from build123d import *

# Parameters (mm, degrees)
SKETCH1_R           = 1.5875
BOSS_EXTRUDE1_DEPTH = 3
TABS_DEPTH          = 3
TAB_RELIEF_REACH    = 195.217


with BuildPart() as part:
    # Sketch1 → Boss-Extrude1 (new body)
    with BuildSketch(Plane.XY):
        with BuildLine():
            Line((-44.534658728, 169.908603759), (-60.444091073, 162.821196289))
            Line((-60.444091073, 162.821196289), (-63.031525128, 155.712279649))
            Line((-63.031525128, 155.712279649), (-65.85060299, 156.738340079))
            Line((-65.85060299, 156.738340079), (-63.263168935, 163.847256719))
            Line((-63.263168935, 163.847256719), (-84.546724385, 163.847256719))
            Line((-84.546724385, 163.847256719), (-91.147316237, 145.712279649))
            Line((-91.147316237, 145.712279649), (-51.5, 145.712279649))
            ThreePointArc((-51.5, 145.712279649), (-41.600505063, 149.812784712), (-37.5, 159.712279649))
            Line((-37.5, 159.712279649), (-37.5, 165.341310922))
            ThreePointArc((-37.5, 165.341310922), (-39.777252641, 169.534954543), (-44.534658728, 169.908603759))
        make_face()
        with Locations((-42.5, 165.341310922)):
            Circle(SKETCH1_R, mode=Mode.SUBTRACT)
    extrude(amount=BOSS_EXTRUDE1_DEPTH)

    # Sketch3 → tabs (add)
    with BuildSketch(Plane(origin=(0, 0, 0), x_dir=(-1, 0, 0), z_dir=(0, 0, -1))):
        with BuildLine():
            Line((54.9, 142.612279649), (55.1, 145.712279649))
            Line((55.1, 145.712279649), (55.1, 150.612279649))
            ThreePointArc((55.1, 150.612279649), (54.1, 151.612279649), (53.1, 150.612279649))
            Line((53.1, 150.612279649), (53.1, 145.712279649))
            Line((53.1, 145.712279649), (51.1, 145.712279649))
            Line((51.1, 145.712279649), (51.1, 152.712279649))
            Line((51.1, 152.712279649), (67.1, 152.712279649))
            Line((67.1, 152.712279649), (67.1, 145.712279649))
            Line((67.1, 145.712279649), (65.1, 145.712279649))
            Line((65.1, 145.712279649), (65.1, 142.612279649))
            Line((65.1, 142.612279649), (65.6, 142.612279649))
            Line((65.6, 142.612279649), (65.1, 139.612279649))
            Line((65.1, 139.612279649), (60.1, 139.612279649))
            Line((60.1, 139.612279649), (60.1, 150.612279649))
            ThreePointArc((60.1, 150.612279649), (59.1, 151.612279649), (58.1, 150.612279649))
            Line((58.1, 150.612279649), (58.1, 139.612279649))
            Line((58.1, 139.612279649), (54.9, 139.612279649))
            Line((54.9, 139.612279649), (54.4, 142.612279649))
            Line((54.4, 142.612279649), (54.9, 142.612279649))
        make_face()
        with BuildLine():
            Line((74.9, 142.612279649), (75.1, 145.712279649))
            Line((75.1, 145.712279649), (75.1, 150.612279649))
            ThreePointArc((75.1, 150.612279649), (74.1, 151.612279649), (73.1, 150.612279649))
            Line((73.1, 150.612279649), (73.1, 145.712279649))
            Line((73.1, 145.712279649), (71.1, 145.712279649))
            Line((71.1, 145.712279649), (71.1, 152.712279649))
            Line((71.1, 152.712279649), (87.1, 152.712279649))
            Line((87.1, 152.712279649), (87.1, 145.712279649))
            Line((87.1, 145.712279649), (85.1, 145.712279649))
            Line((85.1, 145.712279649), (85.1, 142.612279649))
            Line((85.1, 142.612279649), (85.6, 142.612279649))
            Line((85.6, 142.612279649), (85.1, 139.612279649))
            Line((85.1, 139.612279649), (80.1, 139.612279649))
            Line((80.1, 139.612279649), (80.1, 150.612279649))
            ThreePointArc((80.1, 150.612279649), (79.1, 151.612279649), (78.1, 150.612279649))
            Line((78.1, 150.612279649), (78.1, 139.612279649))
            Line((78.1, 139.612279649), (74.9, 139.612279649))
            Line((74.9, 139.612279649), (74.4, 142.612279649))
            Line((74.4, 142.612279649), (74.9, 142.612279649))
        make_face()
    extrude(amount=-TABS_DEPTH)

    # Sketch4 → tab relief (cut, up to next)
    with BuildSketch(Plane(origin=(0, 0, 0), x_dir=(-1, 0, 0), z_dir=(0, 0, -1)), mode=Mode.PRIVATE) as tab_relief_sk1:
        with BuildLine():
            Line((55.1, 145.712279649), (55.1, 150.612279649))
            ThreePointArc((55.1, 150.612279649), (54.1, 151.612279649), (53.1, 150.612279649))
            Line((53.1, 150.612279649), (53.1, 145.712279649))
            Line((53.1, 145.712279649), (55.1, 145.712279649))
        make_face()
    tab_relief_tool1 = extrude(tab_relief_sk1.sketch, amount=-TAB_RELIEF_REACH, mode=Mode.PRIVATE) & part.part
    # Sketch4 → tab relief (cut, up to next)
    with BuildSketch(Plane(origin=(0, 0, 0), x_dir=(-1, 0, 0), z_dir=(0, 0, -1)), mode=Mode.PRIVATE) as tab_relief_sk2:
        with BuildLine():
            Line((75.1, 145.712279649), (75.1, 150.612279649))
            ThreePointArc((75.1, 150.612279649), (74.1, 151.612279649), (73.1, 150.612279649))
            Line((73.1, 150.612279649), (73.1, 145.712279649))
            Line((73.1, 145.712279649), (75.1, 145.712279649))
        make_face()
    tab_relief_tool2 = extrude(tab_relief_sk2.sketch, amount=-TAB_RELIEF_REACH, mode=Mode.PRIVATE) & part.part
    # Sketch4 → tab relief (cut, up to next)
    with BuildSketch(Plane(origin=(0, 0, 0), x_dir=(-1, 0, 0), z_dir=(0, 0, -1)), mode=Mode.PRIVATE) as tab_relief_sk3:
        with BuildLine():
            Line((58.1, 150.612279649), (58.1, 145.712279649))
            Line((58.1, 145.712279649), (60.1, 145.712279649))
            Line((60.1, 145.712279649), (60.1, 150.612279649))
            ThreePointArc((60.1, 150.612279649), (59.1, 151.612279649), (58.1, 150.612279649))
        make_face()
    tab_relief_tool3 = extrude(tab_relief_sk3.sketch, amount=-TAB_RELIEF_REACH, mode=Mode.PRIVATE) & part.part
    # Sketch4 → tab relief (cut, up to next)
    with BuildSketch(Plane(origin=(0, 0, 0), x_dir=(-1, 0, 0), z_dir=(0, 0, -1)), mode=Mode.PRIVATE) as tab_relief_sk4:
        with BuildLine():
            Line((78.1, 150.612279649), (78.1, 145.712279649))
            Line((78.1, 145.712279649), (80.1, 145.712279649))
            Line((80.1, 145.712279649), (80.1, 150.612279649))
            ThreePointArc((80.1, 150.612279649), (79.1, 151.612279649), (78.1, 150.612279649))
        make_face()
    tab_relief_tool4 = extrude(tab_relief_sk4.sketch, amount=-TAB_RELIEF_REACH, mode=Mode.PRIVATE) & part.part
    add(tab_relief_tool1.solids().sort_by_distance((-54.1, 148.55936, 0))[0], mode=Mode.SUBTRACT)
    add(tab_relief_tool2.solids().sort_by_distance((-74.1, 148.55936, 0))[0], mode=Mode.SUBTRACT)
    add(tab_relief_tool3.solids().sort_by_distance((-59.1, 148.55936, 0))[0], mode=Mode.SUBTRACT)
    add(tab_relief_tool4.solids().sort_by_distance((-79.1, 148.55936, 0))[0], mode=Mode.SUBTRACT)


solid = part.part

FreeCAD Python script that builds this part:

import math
import FreeCAD as App
import Part
import Sketcher
from FreeCAD import Vector
Q = App.Units.Quantity

doc = App.newDocument("Part")
body = doc.addObject("PartDesign::Body", "Body")

sketch1 = body.newObject("Sketcher::SketchObject", "Sketch")
sketch1.AttachmentSupport = (doc.getObject("XY_Plane"), [""])
sketch1.MapMode = "FlatFace"
sketch1.addGeometry([
    Part.LineSegment(Vector(-44.5, 169.9, 0), Vector(-60.4, 162.8, 0)),
    Part.LineSegment(Vector(-60.4, 162.8, 0), Vector(-63, 155.7, 0)),
    Part.LineSegment(Vector(-63, 155.7, 0), Vector(-65.9, 156.7, 0)),
    Part.LineSegment(Vector(-65.9, 156.7, 0), Vector(-63.3, 163.8, 0)),
    Part.LineSegment(Vector(-63.3, 163.8, 0), Vector(-84.5, 163.8, 0)),
    Part.LineSegment(Vector(-84.5, 163.8, 0), Vector(-91.1, 145.7, 0)),
    Part.LineSegment(Vector(-91.1, 145.7, 0), Vector(-51.5, 145.7, 0)),
    Part.ArcOfCircle(Part.Circle(Vector(-51.5, 159.7, 0), Vector(0, 0, 1), 14), math.radians(-90), math.radians(0)),
    Part.LineSegment(Vector(-37.5, 159.7, 0), Vector(-37.5, 165.3, 0)),
    Part.ArcOfCircle(Part.Circle(Vector(-42.5, 165.3, 0), Vector(0, 0, 1), 5), math.radians(0), math.radians(114)),
    Part.Circle(Vector(-42.5, 165.3, 0), Vector(0, 0, 1), 1.6),
], False)
sketch1.addConstraint([
    Sketcher.Constraint("Coincident", 0, 2, 1, 1),
    Sketcher.Constraint("Coincident", 1, 2, 2, 1),
    Sketcher.Constraint("Coincident", 2, 2, 3, 1),
    Sketcher.Constraint("Coincident", 3, 2, 4, 1),
    Sketcher.Constraint("Coincident", 4, 2, 5, 1),
    Sketcher.Constraint("Coincident", 5, 2, 6, 1),
    Sketcher.Constraint("Tangent", 6, 2, 7, 1),
    Sketcher.Constraint("Tangent", 7, 2, 8, 1),
    Sketcher.Constraint("Tangent", 8, 2, 9, 1),
    Sketcher.Constraint("Tangent", 9, 2, 0, 1),
    Sketcher.Constraint("Horizontal", 4),
    Sketcher.Constraint("Horizontal", 6),
    Sketcher.Constraint("Vertical", 8),
    Sketcher.Constraint("Coincident", 10, 3, 9, 3),
    Sketcher.Constraint("Perpendicular", 1, 2),
    Sketcher.Constraint("Perpendicular", 2, 3),
    Sketcher.Constraint("Parallel", 3, 5),
    Sketcher.Constraint("Equal", 1, 3),
    Sketcher.Constraint("Radius", 7, Q("14 mm")),
    Sketcher.Constraint("Radius", 9, Q("5 mm")),
    Sketcher.Constraint("Angle", 1, Q("-110 deg")),
    Sketcher.Constraint("Distance", 2, Q("3 mm")),
    Sketcher.Constraint("Diameter", 10, Q("3.175 mm")),
    Sketcher.Constraint("DistanceY", 1, 2, 7, 3, Q("4 mm")),
    Sketcher.Constraint("DistanceX", 7, 3, -1, 1, Q("51.5 mm")),
    Sketcher.Constraint("Distance", 0, Q("17.416698 mm")),
    Sketcher.Constraint("DistanceY", 8, 1, 8, 2, Q("5.629031 mm")),
    Sketcher.Constraint("DistanceX", 4, 2, 1, 2, Q("21.515199 mm")),
    Sketcher.Constraint("Distance", 1, Q("7.565151 mm")),
    Sketcher.Constraint("DistanceY", -1, 1, 7, 3, Q("159.71228 mm")),
])
pad1 = body.newObject("PartDesign::Pad", "Pad")
pad1.Profile = sketch1
pad1.Length = 3

sketch2 = body.newObject("Sketcher::SketchObject", "Sketch001")
sketch2.AttachmentSupport = (doc.getObject("XY_Plane"), [""])
sketch2.MapMode = "FlatFace"
sketch2.addGeometry([
    Part.LineSegment(Vector(-55.1, 145.7, 0), Vector(-54.9, 142.6, 0)),
    Part.LineSegment(Vector(-54.9, 142.6, 0), Vector(-54.4, 142.6, 0)),
    Part.LineSegment(Vector(-54.4, 142.6, 0), Vector(-54.9, 139.6, 0)),
    Part.LineSegment(Vector(-54.9, 139.6, 0), Vector(-58.1, 139.6, 0)),
    Part.LineSegment(Vector(-58.1, 139.6, 0), Vector(-58.1, 150.6, 0)),
    Part.ArcOfCircle(Part.Circle(Vector(-59.1, 150.6, 0), Vector(0, 0, 1), 1), math.radians(0), math.radians(180)),
    Part.LineSegment(Vector(-60.1, 150.6, 0), Vector(-60.1, 139.6, 0)),
    Part.LineSegment(Vector(-60.1, 139.6, 0), Vector(-65.1, 139.6, 0)),
    Part.LineSegment(Vector(-65.1, 139.6, 0), Vector(-65.6, 142.6, 0)),
    Part.LineSegment(Vector(-65.6, 142.6, 0), Vector(-65.1, 142.6, 0)),
    Part.LineSegment(Vector(-65.1, 142.6, 0), Vector(-65.1, 145.7, 0)),
    Part.LineSegment(Vector(-65.1, 145.7, 0), Vector(-67.1, 145.7, 0)),
    Part.LineSegment(Vector(-67.1, 145.7, 0), Vector(-67.1, 152.7, 0)),
    Part.LineSegment(Vector(-67.1, 152.7, 0), Vector(-51.1, 152.7, 0)),
    Part.LineSegment(Vector(-51.1, 152.7, 0), Vector(-51.1, 145.7, 0)),
    Part.LineSegment(Vector(-51.1, 145.7, 0), Vector(-53.1, 145.7, 0)),
    Part.LineSegment(Vector(-53.1, 145.7, 0), Vector(-53.1, 150.6, 0)),
    Part.ArcOfCircle(Part.Circle(Vector(-54.1, 150.6, 0), Vector(0, 0, 1), 1), math.radians(0), math.radians(180)),
    Part.LineSegment(Vector(-55.1, 150.6, 0), Vector(-55.1, 145.7, 0)),
    Part.LineSegment(Vector(-75.1, 145.7, 0), Vector(-74.9, 142.6, 0)),
    Part.LineSegment(Vector(-74.9, 142.6, 0), Vector(-74.4, 142.6, 0)),
    Part.LineSegment(Vector(-74.4, 142.6, 0), Vector(-74.9, 139.6, 0)),
    Part.LineSegment(Vector(-74.9, 139.6, 0), Vector(-78.1, 139.6, 0)),
    Part.LineSegment(Vector(-78.1, 139.6, 0), Vector(-78.1, 150.6, 0)),
    Part.ArcOfCircle(Part.Circle(Vector(-79.1, 150.6, 0), Vector(0, 0, 1), 1), math.radians(0), math.radians(180)),
    Part.LineSegment(Vector(-80.1, 150.6, 0), Vector(-80.1, 139.6, 0)),
    Part.LineSegment(Vector(-80.1, 139.6, 0), Vector(-85.1, 139.6, 0)),
    Part.LineSegment(Vector(-85.1, 139.6, 0), Vector(-85.6, 142.6, 0)),
    Part.LineSegment(Vector(-85.6, 142.6, 0), Vector(-85.1, 142.6, 0)),
    Part.LineSegment(Vector(-85.1, 142.6, 0), Vector(-85.1, 145.7, 0)),
    Part.LineSegment(Vector(-85.1, 145.7, 0), Vector(-87.1, 145.7, 0)),
    Part.LineSegment(Vector(-87.1, 145.7, 0), Vector(-87.1, 152.7, 0)),
    Part.LineSegment(Vector(-87.1, 152.7, 0), Vector(-71.1, 152.7, 0)),
    Part.LineSegment(Vector(-71.1, 152.7, 0), Vector(-71.1, 145.7, 0)),
    Part.LineSegment(Vector(-71.1, 145.7, 0), Vector(-73.1, 145.7, 0)),
    Part.LineSegment(Vector(-73.1, 145.7, 0), Vector(-73.1, 150.6, 0)),
    Part.ArcOfCircle(Part.Circle(Vector(-74.1, 150.6, 0), Vector(0, 0, 1), 1), math.radians(0), math.radians(180)),
    Part.LineSegment(Vector(-75.1, 150.6, 0), Vector(-75.1, 145.7, 0)),
], False)
sketch2.addConstraint([
    Sketcher.Constraint("Coincident", 0, 2, 1, 1),
    Sketcher.Constraint("Coincident", 1, 2, 2, 1),
    Sketcher.Constraint("Coincident", 2, 2, 3, 1),
    Sketcher.Constraint("Coincident", 3, 2, 4, 1),
    Sketcher.Constraint("Tangent", 4, 2, 5, 1),
    Sketcher.Constraint("Tangent", 5, 2, 6, 1),
    Sketcher.Constraint("Coincident", 6, 2, 7, 1),
    Sketcher.Constraint("Coincident", 7, 2, 8, 1),
    Sketcher.Constraint("Coincident", 8, 2, 9, 1),
    Sketcher.Constraint("Coincident", 9, 2, 10, 1),
    Sketcher.Constraint("Coincident", 10, 2, 11, 1),
    Sketcher.Constraint("Coincident", 11, 2, 12, 1),
    Sketcher.Constraint("Coincident", 12, 2, 13, 1),
    Sketcher.Constraint("Coincident", 13, 2, 14, 1),
    Sketcher.Constraint("Coincident", 14, 2, 15, 1),
    Sketcher.Constraint("Coincident", 15, 2, 16, 1),
    Sketcher.Constraint("Tangent", 16, 2, 17, 1),
    Sketcher.Constraint("Tangent", 17, 2, 18, 1),
    Sketcher.Constraint("Coincident", 18, 2, 0, 1),
    Sketcher.Constraint("Coincident", 19, 2, 20, 1),
    Sketcher.Constraint("Coincident", 20, 2, 21, 1),
    Sketcher.Constraint("Coincident", 21, 2, 22, 1),
    Sketcher.Constraint("Coincident", 22, 2, 23, 1),
    Sketcher.Constraint("Tangent", 23, 2, 24, 1),
    Sketcher.Constraint("Tangent", 24, 2, 25, 1),
    Sketcher.Constraint("Coincident", 25, 2, 26, 1),
    Sketcher.Constraint("Coincident", 26, 2, 27, 1),
    Sketcher.Constraint("Coincident", 27, 2, 28, 1),
    Sketcher.Constraint("Coincident", 28, 2, 29, 1),
    Sketcher.Constraint("Coincident", 29, 2, 30, 1),
    Sketcher.Constraint("Coincident", 30, 2, 31, 1),
    Sketcher.Constraint("Coincident", 31, 2, 32, 1),
    Sketcher.Constraint("Coincident", 32, 2, 33, 1),
    Sketcher.Constraint("Coincident", 33, 2, 34, 1),
    Sketcher.Constraint("Coincident", 34, 2, 35, 1),
    Sketcher.Constraint("Tangent", 35, 2, 36, 1),
    Sketcher.Constraint("Tangent", 36, 2, 37, 1),
    Sketcher.Constraint("Coincident", 37, 2, 19, 1),
    Sketcher.Constraint("Horizontal", 1),
    Sketcher.Constraint("Horizontal", 3),
    Sketcher.Constraint("Vertical", 4),
    Sketcher.Constraint("Vertical", 6),
    Sketcher.Constraint("Horizontal", 7),
    Sketcher.Constraint("Horizontal", 9),
    Sketcher.Constraint("Vertical", 10),
    Sketcher.Constraint("Horizontal", 11),
    Sketcher.Constraint("Vertical", 12),
    Sketcher.Constraint("Horizontal", 13),
    Sketcher.Constraint("Vertical", 14),
    Sketcher.Constraint("Horizontal", 15),
    Sketcher.Constraint("Vertical", 16),
    Sketcher.Constraint("Vertical", 18),
    Sketcher.Constraint("Horizontal", 20),
    Sketcher.Constraint("Horizontal", 22),
    Sketcher.Constraint("Vertical", 23),
    Sketcher.Constraint("Vertical", 25),
    Sketcher.Constraint("Horizontal", 26),
    Sketcher.Constraint("Horizontal", 28),
    Sketcher.Constraint("Vertical", 29),
    Sketcher.Constraint("Horizontal", 30),
    Sketcher.Constraint("Vertical", 31),
    Sketcher.Constraint("Horizontal", 32),
    Sketcher.Constraint("Vertical", 33),
    Sketcher.Constraint("Horizontal", 34),
    Sketcher.Constraint("Vertical", 35),
    Sketcher.Constraint("Vertical", 37),
    Sketcher.Constraint("Equal", 5, 17),
    Sketcher.Constraint("Equal", 17, 24),
    Sketcher.Constraint("Equal", 24, 36),
    Sketcher.Constraint("Parallel", 0, 19),
    Sketcher.Constraint("Parallel", 2, 21),
    Sketcher.Constraint("Parallel", 8, 27),
    Sketcher.Constraint("Horizontal", 5, 3, 17, 3),
    Sketcher.Constraint("Horizontal", 17, 3, 24, 3),
    Sketcher.Constraint("Horizontal", 24, 3, 36, 3),
    Sketcher.Constraint("Horizontal", 3, 2, 6, 2),
    Sketcher.Constraint("Horizontal", 1, 2, 8, 2),
    Sketcher.Constraint("Horizontal", 11, 2, 14, 2),
    Sketcher.Constraint("Horizontal", 15, 2, 18, 2),
    Sketcher.Constraint("Horizontal", 9, 2, 19, 2),
    Sketcher.Constraint("Horizontal", 7, 2, 21, 2),
    Sketcher.Constraint("Horizontal", 22, 2, 25, 2),
    Sketcher.Constraint("Horizontal", 20, 2, 27, 2),
    Sketcher.Constraint("Horizontal", 18, 2, 29, 2),
    Sketcher.Constraint("Horizontal", 13, 2, 31, 2),
    Sketcher.Constraint("Horizontal", 30, 2, 33, 2),
    Sketcher.Constraint("Horizontal", 34, 2, 37, 2),
    Sketcher.Constraint("Vertical", 0, 2, 2, 2),
    Sketcher.Constraint("Vertical", 7, 2, 9, 2),
    Sketcher.Constraint("Vertical", 19, 2, 21, 2),
    Sketcher.Constraint("Vertical", 26, 2, 28, 2),
    Sketcher.Constraint("Equal", 1, 9),
    Sketcher.Constraint("Equal", 11, 15),
    Sketcher.Constraint("Equal", 3, 22),
    Sketcher.Constraint("Equal", 7, 26),
    Sketcher.Constraint("Equal", 15, 30),
    Sketcher.Constraint("Equal", 13, 32),
    Sketcher.Constraint("Radius", 5, Q("1 mm")),
    Sketcher.Constraint("DistanceX", 7, 2, 7, 1, Q("5 mm")),
    Sketcher.Constraint("DistanceX", 11, 2, 11, 1, Q("2 mm")),
    Sketcher.Constraint("DistanceX", 13, 1, 13, 2, Q("16 mm")),
    Sketcher.Constraint("DistanceY", 4, 1, 4, 2, Q("11 mm")),
    Sketcher.Constraint("DistanceY", 12, 1, 12, 2, Q("7 mm")),
    Sketcher.Constraint("DistanceX", 1, 1, 1, 2, Q("0.5 mm")),
    Sketcher.Constraint("DistanceX", 3, 2, 3, 1, Q("3.2 mm")),
    Sketcher.Constraint("DistanceY", 10, 1, 10, 2, Q("3.1 mm")),
    Sketcher.Constraint("DistanceY", 16, 1, 16, 2, Q("4.9 mm")),
    Sketcher.Constraint("DistanceX", 24, 3, 5, 3, Q("20 mm")),
    Sketcher.Constraint("DistanceX", 5, 3, -1, 1, Q("59.1 mm")),
    Sketcher.Constraint("DistanceY", -1, 1, 5, 3, Q("150.61228 mm")),
])
pad2 = body.newObject("PartDesign::Pad", "Pad001")
pad2.Profile = sketch2
pad2.Length = 3

sketch3 = body.newObject("Sketcher::SketchObject", "Sketch002")
sketch3.AttachmentSupport = (doc.getObject("XY_Plane"), [""])
sketch3.MapMode = "FlatFace"
sketch3.addGeometry([
    Part.LineSegment(Vector(-55.1, 145.7, 0), Vector(-55.1, 150.6, 0)),
    Part.ArcOfCircle(Part.Circle(Vector(-54.1, 150.6, 0), Vector(0, 0, 1), 1), math.radians(0), math.radians(180)),
    Part.LineSegment(Vector(-53.1, 150.6, 0), Vector(-53.1, 145.7, 0)),
    Part.LineSegment(Vector(-53.1, 145.7, 0), Vector(-55.1, 145.7, 0)),
], False)
sketch3.addConstraint([
    Sketcher.Constraint("Tangent", 0, 2, 1, 2),
    Sketcher.Constraint("Tangent", 1, 1, 2, 1),
    Sketcher.Constraint("Coincident", 2, 2, 3, 1),
    Sketcher.Constraint("Coincident", 3, 2, 0, 1),
    Sketcher.Constraint("Vertical", 0),
    Sketcher.Constraint("Vertical", 2),
    Sketcher.Constraint("Horizontal", 3),
    Sketcher.Constraint("Radius", 1, Q("1 mm")),
    Sketcher.Constraint("DistanceY", 0, 1, 0, 2, Q("4.9 mm")),
    Sketcher.Constraint("DistanceX", 1, 3, -1, 1, Q("54.1 mm")),
    Sketcher.Constraint("DistanceY", -1, 1, 1, 3, Q("150.61228 mm")),
])
pocket1 = body.newObject("PartDesign::Pocket", "Pocket")
pocket1.Profile = sketch3
pocket1.Type = "UpToFirst"
pocket1.Reversed = True

sketch4 = body.newObject("Sketcher::SketchObject", "Sketch003")
sketch4.AttachmentSupport = (doc.getObject("XY_Plane"), [""])
sketch4.MapMode = "FlatFace"
sketch4.addGeometry([
    Part.LineSegment(Vector(-75.1, 145.7, 0), Vector(-75.1, 150.6, 0)),
    Part.ArcOfCircle(Part.Circle(Vector(-74.1, 150.6, 0), Vector(0, 0, 1), 1), math.radians(0), math.radians(180)),
    Part.LineSegment(Vector(-73.1, 150.6, 0), Vector(-73.1, 145.7, 0)),
    Part.LineSegment(Vector(-73.1, 145.7, 0), Vector(-75.1, 145.7, 0)),
], False)
sketch4.addConstraint([
    Sketcher.Constraint("Tangent", 0, 2, 1, 2),
    Sketcher.Constraint("Tangent", 1, 1, 2, 1),
    Sketcher.Constraint("Coincident", 2, 2, 3, 1),
    Sketcher.Constraint("Coincident", 3, 2, 0, 1),
    Sketcher.Constraint("Vertical", 0),
    Sketcher.Constraint("Vertical", 2),
    Sketcher.Constraint("Horizontal", 3),
    Sketcher.Constraint("Radius", 1, Q("1 mm")),
    Sketcher.Constraint("DistanceY", 0, 1, 0, 2, Q("4.9 mm")),
    Sketcher.Constraint("DistanceX", 1, 3, -1, 1, Q("74.1 mm")),
    Sketcher.Constraint("DistanceY", -1, 1, 1, 3, Q("150.61228 mm")),
])
pocket2 = body.newObject("PartDesign::Pocket", "Pocket001")
pocket2.Profile = sketch4
pocket2.Type = "UpToFirst"
pocket2.Reversed = True

sketch5 = body.newObject("Sketcher::SketchObject", "Sketch004")
sketch5.AttachmentSupport = (doc.getObject("XY_Plane"), [""])
sketch5.MapMode = "FlatFace"
sketch5.addGeometry([
    Part.LineSegment(Vector(-58.1, 150.6, 0), Vector(-58.1, 145.7, 0)),
    Part.LineSegment(Vector(-58.1, 145.7, 0), Vector(-60.1, 145.7, 0)),
    Part.LineSegment(Vector(-60.1, 145.7, 0), Vector(-60.1, 150.6, 0)),
    Part.ArcOfCircle(Part.Circle(Vector(-59.1, 150.6, 0), Vector(0, 0, 1), 1), math.radians(0), math.radians(180)),
], False)
sketch5.addConstraint([
    Sketcher.Constraint("Coincident", 0, 2, 1, 1),
    Sketcher.Constraint("Coincident", 1, 2, 2, 1),
    Sketcher.Constraint("Tangent", 2, 2, 3, 2),
    Sketcher.Constraint("Tangent", 3, 1, 0, 1),
    Sketcher.Constraint("Vertical", 0),
    Sketcher.Constraint("Horizontal", 1),
    Sketcher.Constraint("Vertical", 2),
    Sketcher.Constraint("Radius", 3, Q("1 mm")),
    Sketcher.Constraint("DistanceY", 0, 2, 0, 1, Q("4.9 mm")),
    Sketcher.Constraint("DistanceX", 3, 3, -1, 1, Q("59.1 mm")),
    Sketcher.Constraint("DistanceY", -1, 1, 3, 3, Q("150.61228 mm")),
])
pocket3 = body.newObject("PartDesign::Pocket", "Pocket002")
pocket3.Profile = sketch5
pocket3.Type = "UpToFirst"
pocket3.Reversed = True

sketch6 = body.newObject("Sketcher::SketchObject", "Sketch005")
sketch6.AttachmentSupport = (doc.getObject("XY_Plane"), [""])
sketch6.MapMode = "FlatFace"
sketch6.addGeometry([
    Part.LineSegment(Vector(-78.1, 150.6, 0), Vector(-78.1, 145.7, 0)),
    Part.LineSegment(Vector(-78.1, 145.7, 0), Vector(-80.1, 145.7, 0)),
    Part.LineSegment(Vector(-80.1, 145.7, 0), Vector(-80.1, 150.6, 0)),
    Part.ArcOfCircle(Part.Circle(Vector(-79.1, 150.6, 0), Vector(0, 0, 1), 1), math.radians(0), math.radians(180)),
], False)
sketch6.addConstraint([
    Sketcher.Constraint("Coincident", 0, 2, 1, 1),
    Sketcher.Constraint("Coincident", 1, 2, 2, 1),
    Sketcher.Constraint("Tangent", 2, 2, 3, 2),
    Sketcher.Constraint("Tangent", 3, 1, 0, 1),
    Sketcher.Constraint("Vertical", 0),
    Sketcher.Constraint("Horizontal", 1),
    Sketcher.Constraint("Vertical", 2),
    Sketcher.Constraint("Radius", 3, Q("1 mm")),
    Sketcher.Constraint("DistanceY", 0, 2, 0, 1, Q("4.9 mm")),
    Sketcher.Constraint("DistanceX", 3, 3, -1, 1, Q("79.1 mm")),
    Sketcher.Constraint("DistanceY", -1, 1, 3, 3, Q("150.61228 mm")),
])
pocket4 = body.newObject("PartDesign::Pocket", "Pocket003")
pocket4.Profile = sketch6
pocket4.Type = "UpToFirst"
pocket4.Reversed = True

doc.recompute()
